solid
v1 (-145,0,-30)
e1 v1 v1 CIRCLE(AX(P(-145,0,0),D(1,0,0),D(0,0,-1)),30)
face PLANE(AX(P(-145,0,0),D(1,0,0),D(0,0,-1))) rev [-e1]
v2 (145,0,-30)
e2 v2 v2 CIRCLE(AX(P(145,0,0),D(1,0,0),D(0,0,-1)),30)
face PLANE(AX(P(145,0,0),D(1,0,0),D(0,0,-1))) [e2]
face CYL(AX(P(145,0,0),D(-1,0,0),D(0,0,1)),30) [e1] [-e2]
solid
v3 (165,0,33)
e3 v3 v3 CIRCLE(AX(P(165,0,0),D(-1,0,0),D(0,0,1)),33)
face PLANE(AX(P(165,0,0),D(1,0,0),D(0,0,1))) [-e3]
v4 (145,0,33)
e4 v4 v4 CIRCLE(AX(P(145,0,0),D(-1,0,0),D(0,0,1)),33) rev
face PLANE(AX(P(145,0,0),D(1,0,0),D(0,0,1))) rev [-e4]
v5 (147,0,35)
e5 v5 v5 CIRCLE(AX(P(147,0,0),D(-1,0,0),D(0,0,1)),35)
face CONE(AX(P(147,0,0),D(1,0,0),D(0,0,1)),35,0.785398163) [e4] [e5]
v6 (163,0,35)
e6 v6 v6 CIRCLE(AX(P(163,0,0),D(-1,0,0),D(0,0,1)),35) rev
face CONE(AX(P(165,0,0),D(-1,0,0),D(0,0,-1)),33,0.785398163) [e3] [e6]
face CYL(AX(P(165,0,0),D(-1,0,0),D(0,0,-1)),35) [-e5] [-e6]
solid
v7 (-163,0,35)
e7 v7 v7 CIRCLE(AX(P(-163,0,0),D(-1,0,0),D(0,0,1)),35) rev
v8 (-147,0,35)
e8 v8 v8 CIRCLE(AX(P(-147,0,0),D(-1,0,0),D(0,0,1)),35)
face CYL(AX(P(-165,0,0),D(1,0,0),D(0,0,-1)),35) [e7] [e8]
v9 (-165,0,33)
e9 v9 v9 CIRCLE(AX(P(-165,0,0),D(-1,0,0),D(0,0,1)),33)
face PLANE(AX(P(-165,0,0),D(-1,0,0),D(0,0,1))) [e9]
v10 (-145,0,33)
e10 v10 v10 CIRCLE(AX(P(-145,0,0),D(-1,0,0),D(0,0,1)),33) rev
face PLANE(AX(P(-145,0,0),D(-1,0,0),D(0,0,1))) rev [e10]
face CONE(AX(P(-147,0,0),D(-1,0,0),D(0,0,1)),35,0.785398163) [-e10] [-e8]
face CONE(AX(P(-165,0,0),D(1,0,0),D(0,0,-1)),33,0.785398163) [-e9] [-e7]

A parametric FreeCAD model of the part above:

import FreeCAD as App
import Part
import Sketcher
from FreeCAD import Vector


def edges_at(feature, points):
    """Names of the edges that pass closest to the given points."""
    edges = feature.Shape.Edges
    near = lambda p: min(range(len(edges)), key=lambda i: edges[i].distToShape(Part.Vertex(*p))[0])
    return sorted({f"Edge{near(p) + 1}" for p in points})

doc = App.newDocument("Part")
body = doc.addObject("PartDesign::Body", "Body")

# Sketch on YZ plane
sketch1 = body.newObject("Sketcher::SketchObject", "Sketch")
sketch1.AttachmentSupport = (doc.getObject("YZ_Plane"), [""])
sketch1.MapMode = "FlatFace"
sketch1.addGeometry(Part.Circle(Vector(0, 0, 0), Vector(0, 0, 1), 30), False)
sketch1.addConstraint([
    Sketcher.Constraint("Coincident", 0, 3, -1, 1),
    Sketcher.Constraint("Diameter", 0, 60.0),
])
pad1 = body.newObject("PartDesign::Pad", "Pad")
pad1.Profile = sketch1
pad1.Length = 290
pad1.Midplane = True
body2 = doc.addObject("PartDesign::Body", "Body001")

# Sketch on YZ plane
sketch2 = body2.newObject("Sketcher::SketchObject", "Sketch001")
sketch2.AttachmentSupport = (doc.getObject("YZ_Plane001"), [""])
sketch2.MapMode = "FlatFace"
sketch2.AttachmentOffset = App.Placement(Vector(0, 0, -145), App.Rotation())
sketch2.addGeometry(Part.Circle(Vector(0, 0, 0), Vector(0, 0, 1), 35), False)
sketch2.addConstraint([
    Sketcher.Constraint("Coincident", 0, 3, -1, 1),
    Sketcher.Constraint("Diameter", 0, 70.0),
])
pad2 = body2.newObject("PartDesign::Pad", "Pad001")
pad2.Profile = sketch2
pad2.Length = 20
pad2.Reversed = True
doc.recompute()

chamfer = body2.newObject("PartDesign::Chamfer", "Chamfer")
chamfer.Base = (pad2, edges_at(pad2, [(-145, 0, -35), (-165, 0, -35)]))
chamfer.Size = 2
body3 = doc.addObject("PartDesign::Body", "Body002")
doc.recompute()

mirroring = doc.addObject("Part::Mirroring", "Mirroring")
mirroring.Source = body2
mirroring.Base = Vector(0, 0, 0)
mirroring.Normal = Vector(1, 0, 0)
body3.BaseFeature = mirroring
doc.recompute()
mirroring.Visibility = False

doc.recompute()
